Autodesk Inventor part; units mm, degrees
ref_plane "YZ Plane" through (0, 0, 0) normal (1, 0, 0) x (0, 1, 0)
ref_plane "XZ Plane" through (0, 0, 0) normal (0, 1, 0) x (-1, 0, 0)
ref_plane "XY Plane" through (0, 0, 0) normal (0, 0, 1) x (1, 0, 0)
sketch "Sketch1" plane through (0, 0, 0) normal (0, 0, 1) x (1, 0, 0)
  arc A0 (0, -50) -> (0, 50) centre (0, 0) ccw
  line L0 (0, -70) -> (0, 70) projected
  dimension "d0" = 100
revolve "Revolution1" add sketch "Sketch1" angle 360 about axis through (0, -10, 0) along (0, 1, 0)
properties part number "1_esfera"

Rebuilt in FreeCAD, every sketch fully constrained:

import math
import FreeCAD as App
import Part
import Sketcher
Q = App.Units.Quantity

doc = App.newDocument("Part")
body = doc.addObject("PartDesign::Body", "Body")

sketch1 = body.newObject("Sketcher::SketchObject", "Sketch")
sketch1.AttachmentSupport = (doc.getObject("XY_Plane"), [""])
sketch1.MapMode = "FlatFace"
sketch1.addGeometry(Part.LineSegment(App.Vector(0, 50, 0), App.Vector(0, -50, 0)), False)
sketch1.addGeometry(Part.ArcOfCircle(Part.Circle(App.Vector(0, 0, 0), App.Vector(0, 0, 1), 50), math.radians(-90), math.radians(90)), False)
sketch1.addConstraint(Sketcher.Constraint("Coincident", 0, 1, 1, 2))
sketch1.addConstraint(Sketcher.Constraint("Coincident", 1, 1, 0, 2))
sketch1.addConstraint(Sketcher.Constraint("Vertical", 0))
sketch1.addConstraint(Sketcher.Constraint("Coincident", 1, 3, -1, 1))
sketch1.addConstraint(Sketcher.Constraint("PointOnObject", 0, 1, -2))
sketch1.addConstraint(Sketcher.Constraint("Radius", 1, Q("1.9685 in")))
revolution = body.newObject("PartDesign::Revolution", "Revolution")
revolution.Profile = sketch1
revolution.ReferenceAxis = (sketch1, ["V_Axis"])
revolution.Angle = 360

doc.recompute()
